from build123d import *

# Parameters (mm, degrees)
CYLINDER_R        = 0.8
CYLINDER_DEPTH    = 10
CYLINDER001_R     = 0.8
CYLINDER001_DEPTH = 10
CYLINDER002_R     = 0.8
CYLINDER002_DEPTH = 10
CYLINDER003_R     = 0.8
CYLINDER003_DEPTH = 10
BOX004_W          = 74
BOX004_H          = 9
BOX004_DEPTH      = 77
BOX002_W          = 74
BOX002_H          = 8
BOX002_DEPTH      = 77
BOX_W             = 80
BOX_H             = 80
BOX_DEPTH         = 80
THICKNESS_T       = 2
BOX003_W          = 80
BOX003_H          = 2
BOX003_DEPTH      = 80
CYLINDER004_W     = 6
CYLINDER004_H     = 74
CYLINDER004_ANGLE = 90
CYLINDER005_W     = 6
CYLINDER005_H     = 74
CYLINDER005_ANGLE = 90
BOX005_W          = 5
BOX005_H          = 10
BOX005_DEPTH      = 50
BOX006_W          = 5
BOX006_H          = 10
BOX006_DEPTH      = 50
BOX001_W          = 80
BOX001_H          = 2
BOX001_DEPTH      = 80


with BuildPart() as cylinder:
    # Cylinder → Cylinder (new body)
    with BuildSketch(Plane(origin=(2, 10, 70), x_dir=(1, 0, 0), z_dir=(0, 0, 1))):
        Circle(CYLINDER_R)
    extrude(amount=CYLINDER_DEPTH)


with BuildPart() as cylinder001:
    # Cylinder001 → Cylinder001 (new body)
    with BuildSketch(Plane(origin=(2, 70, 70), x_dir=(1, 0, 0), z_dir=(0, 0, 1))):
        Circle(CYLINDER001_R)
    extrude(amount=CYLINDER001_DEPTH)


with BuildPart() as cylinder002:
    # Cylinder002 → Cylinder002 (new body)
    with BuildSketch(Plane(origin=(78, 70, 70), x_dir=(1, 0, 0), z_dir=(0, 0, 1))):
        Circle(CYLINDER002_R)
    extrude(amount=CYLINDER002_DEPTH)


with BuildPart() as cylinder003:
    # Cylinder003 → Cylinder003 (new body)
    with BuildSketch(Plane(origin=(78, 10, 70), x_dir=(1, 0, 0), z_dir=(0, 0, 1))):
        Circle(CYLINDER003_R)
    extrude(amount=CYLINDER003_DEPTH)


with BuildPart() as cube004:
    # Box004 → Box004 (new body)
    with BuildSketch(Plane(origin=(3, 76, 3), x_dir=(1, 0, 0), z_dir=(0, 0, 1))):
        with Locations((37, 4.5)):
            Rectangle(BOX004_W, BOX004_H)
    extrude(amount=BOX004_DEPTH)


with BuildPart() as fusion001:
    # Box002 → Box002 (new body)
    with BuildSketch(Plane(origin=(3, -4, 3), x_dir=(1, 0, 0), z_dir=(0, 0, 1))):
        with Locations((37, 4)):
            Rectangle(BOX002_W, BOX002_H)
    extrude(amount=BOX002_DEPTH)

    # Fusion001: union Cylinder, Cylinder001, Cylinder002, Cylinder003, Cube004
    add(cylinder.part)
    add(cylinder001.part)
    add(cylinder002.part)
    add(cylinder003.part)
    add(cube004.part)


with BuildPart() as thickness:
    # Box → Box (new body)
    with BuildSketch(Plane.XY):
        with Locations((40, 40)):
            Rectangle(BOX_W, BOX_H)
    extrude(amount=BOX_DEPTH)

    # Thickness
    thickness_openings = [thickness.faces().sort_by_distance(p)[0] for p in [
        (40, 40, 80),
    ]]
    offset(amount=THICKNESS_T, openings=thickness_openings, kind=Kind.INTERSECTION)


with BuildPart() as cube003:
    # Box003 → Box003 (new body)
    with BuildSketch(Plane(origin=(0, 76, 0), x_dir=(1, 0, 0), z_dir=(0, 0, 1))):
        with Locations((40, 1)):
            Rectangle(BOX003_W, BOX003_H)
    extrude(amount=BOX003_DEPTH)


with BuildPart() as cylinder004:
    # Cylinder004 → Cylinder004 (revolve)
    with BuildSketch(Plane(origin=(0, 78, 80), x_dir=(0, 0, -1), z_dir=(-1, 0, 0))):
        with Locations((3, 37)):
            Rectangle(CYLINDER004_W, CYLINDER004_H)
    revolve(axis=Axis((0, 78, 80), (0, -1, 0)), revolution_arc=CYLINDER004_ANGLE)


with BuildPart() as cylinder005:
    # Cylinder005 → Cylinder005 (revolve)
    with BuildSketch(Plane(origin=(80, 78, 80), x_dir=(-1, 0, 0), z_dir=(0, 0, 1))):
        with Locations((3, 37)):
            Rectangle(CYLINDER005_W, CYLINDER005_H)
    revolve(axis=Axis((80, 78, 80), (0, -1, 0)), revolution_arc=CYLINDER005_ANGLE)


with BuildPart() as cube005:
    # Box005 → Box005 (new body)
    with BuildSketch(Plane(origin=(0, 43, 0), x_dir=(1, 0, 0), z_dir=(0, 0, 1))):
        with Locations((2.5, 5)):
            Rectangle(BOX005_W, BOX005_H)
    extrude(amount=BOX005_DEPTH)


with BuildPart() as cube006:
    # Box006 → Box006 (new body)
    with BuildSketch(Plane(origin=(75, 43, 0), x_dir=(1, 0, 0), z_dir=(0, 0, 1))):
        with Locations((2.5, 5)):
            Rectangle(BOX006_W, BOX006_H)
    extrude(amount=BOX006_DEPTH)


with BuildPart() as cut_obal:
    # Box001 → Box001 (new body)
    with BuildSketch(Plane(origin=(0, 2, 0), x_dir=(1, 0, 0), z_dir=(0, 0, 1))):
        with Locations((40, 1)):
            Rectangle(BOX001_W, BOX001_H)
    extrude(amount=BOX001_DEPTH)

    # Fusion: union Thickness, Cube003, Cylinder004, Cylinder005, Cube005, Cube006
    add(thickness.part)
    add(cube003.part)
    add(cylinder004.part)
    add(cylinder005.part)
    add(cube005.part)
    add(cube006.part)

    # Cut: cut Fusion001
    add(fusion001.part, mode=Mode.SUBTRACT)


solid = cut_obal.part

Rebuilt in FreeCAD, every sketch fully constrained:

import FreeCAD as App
import Part
import Sketcher


def faces_at(feature, points):
    """Names of the faces that lie closest to the given points."""
    faces = feature.Shape.Faces
    near = lambda p: min(range(len(faces)), key=lambda i: faces[i].distToShape(Part.Vertex(*p))[0])
    return sorted({f"Face{near(p) + 1}" for p in points})


def add_polygon(sketch, points):
    """Adds a closed chain of lines whose ends are joined by coincident constraints."""
    first, n = sketch.GeometryCount, len(points)
    for a, b in zip(points, points[1:] + points[:1]):
        sketch.addGeometry(Part.LineSegment(App.Vector(*a, 0), App.Vector(*b, 0)), False)
    for i in range(n):
        sketch.addConstraint(Sketcher.Constraint("Coincident", first + i, 2, first + (i + 1) % n, 1))

doc = App.newDocument("Part")
params = doc.addObject("Spreadsheet::Sheet", "Params")
for row, (alias, value) in enumerate([
    ("sketch1_diameter", "1.6 mm"),
    ("pad1_length", "10 mm"),
    ("sketch2_diameter", "1.6 mm"),
    ("pad2_length", "10 mm"),
    ("sketch3_diameter", "1.6 mm"),
    ("pad3_length", "10 mm"),
    ("sketch4_diameter", "1.6 mm"),
    ("pad4_length", "10 mm"),
    ("sketch5_width", "74 mm"),
    ("sketch5_height", "9 mm"),
    ("pad5_length", "77 mm"),
    ("sketch6_width", "74 mm"),
    ("sketch6_height", "8 mm"),
    ("pad6_length", "77 mm"),
    ("sketch7_width", "80 mm"),
    ("pad7_length", "80 mm"),
    ("thickness_wall", "2 mm"),
    ("sketch8_width", "80 mm"),
    ("sketch8_height", "2 mm"),
    ("pad8_length", "80 mm"),
    ("sketch9_width", "74 mm"),
    ("sketch9_height", "6 mm"),
    ("revolution_angle", "90 deg"),
    ("sketch10_width", "6 mm"),
    ("sketch10_height", "74 mm"),
    ("revolution2_angle", "90 deg"),
    ("sketch11_width", "5 mm"),
    ("sketch11_height", "10 mm"),
    ("pad9_length", "50 mm"),
    ("sketch12_width", "5 mm"),
    ("sketch12_height", "10 mm"),
    ("pad10_length", "50 mm"),
    ("sketch13_width", "80 mm"),
    ("sketch13_height", "2 mm"),
    ("pad11_length", "80 mm"),
], start=1):
    params.set(f"A{row}", alias)
    params.set(f"B{row}", "=" + value)
    params.setAlias(f"B{row}", alias)

body = doc.addObject("PartDesign::Body", "Body")

# Sketch on XY plane
sketch1 = body.newObject("Sketcher::SketchObject", "Sketch")
sketch1.AttachmentSupport = (doc.getObject("XY_Plane"), [""])
sketch1.MapMode = "FlatFace"
sketch1.AttachmentOffset = App.Placement(App.Vector(0, 0, 70), App.Rotation())
sketch1.addGeometry(Part.Circle(App.Vector(2, 10, 0), App.Vector(0, 0, 1), 0.8), False)
sketch1.addConstraint([
    Sketcher.Constraint("Diameter", 0, 1.6),
    Sketcher.Constraint("DistanceX", -1, 1, 0, 3, 2.0),
    Sketcher.Constraint("DistanceY", -1, 1, 0, 3, 10.0),
])
sketch1.setExpression("Constraints[0]", "Params.sketch1_diameter")
pad1 = body.newObject("PartDesign::Pad", "Pad")
pad1.Profile = sketch1
pad1.setExpression("Length", "Params.pad1_length")
body2 = doc.addObject("PartDesign::Body", "Body001")

# Sketch on XY plane
sketch2 = body2.newObject("Sketcher::SketchObject", "Sketch001")
sketch2.AttachmentSupport = (doc.getObject("XY_Plane001"), [""])
sketch2.MapMode = "FlatFace"
sketch2.AttachmentOffset = App.Placement(App.Vector(0, 0, 70), App.Rotation())
sketch2.addGeometry(Part.Circle(App.Vector(2, 70, 0), App.Vector(0, 0, 1), 0.8), False)
sketch2.addConstraint([
    Sketcher.Constraint("Diameter", 0, 1.6),
    Sketcher.Constraint("DistanceX", -1, 1, 0, 3, 2.0),
    Sketcher.Constraint("DistanceY", -1, 1, 0, 3, 70.0),
])
sketch2.setExpression("Constraints[0]", "Params.sketch2_diameter")
pad2 = body2.newObject("PartDesign::Pad", "Pad001")
pad2.Profile = sketch2
pad2.setExpression("Length", "Params.pad2_length")
body3 = doc.addObject("PartDesign::Body", "Body002")

# Sketch on XY plane
sketch3 = body3.newObject("Sketcher::SketchObject", "Sketch002")
sketch3.AttachmentSupport = (doc.getObject("XY_Plane002"), [""])
sketch3.MapMode = "FlatFace"
sketch3.AttachmentOffset = App.Placement(App.Vector(0, 0, 70), App.Rotation())
sketch3.addGeometry(Part.Circle(App.Vector(78, 70, 0), App.Vector(0, 0, 1), 0.8), False)
sketch3.addConstraint([
    Sketcher.Constraint("Diameter", 0, 1.6),
    Sketcher.Constraint("DistanceX", -1, 1, 0, 3, 78.0),
    Sketcher.Constraint("DistanceY", -1, 1, 0, 3, 70.0),
])
sketch3.setExpression("Constraints[0]", "Params.sketch3_diameter")
pad3 = body3.newObject("PartDesign::Pad", "Pad002")
pad3.Profile = sketch3
pad3.setExpression("Length", "Params.pad3_length")
body4 = doc.addObject("PartDesign::Body", "Body003")

# Sketch on XY plane
sketch4 = body4.newObject("Sketcher::SketchObject", "Sketch003")
sketch4.AttachmentSupport = (doc.getObject("XY_Plane003"), [""])
sketch4.MapMode = "FlatFace"
sketch4.AttachmentOffset = App.Placement(App.Vector(0, 0, 70), App.Rotation())
sketch4.addGeometry(Part.Circle(App.Vector(78, 10, 0), App.Vector(0, 0, 1), 0.8), False)
sketch4.addConstraint([
    Sketcher.Constraint("Diameter", 0, 1.6),
    Sketcher.Constraint("DistanceX", -1, 1, 0, 3, 78.0),
    Sketcher.Constraint("DistanceY", -1, 1, 0, 3, 10.0),
])
sketch4.setExpression("Constraints[0]", "Params.sketch4_diameter")
pad4 = body4.newObject("PartDesign::Pad", "Pad003")
pad4.Profile = sketch4
pad4.setExpression("Length", "Params.pad4_length")
body5 = doc.addObject("PartDesign::Body", "Body004")

# Sketch on XY plane
sketch5 = body5.newObject("Sketcher::SketchObject", "Sketch004")
sketch5.AttachmentSupport = (doc.getObject("XY_Plane004"), [""])
sketch5.MapMode = "FlatFace"
sketch5.AttachmentOffset = App.Placement(App.Vector(0, 0, 3), App.Rotation())
add_polygon(sketch5, [(3, 85), (3, 76), (77, 76), (77, 85)])  # lines 0-3
sketch5.addConstraint([
    Sketcher.Constraint("Vertical", 0),
    Sketcher.Constraint("Horizontal", 1),
    Sketcher.Constraint("Vertical", 2),
    Sketcher.Constraint("Horizontal", 3),
    Sketcher.Constraint("DistanceX", 1, 1, 1, 2, 74.0),
    Sketcher.Constraint("DistanceY", 0, 2, 0, 1, 9.0),
    Sketcher.Constraint("DistanceX", -1, 1, 0, 2, 3.0),
    Sketcher.Constraint("DistanceY", -1, 1, 0, 2, 76.0),
])
sketch5.setExpression("Constraints[8]", "Params.sketch5_width")
sketch5.setExpression("Constraints[9]", "Params.sketch5_height")
pad5 = body5.newObject("PartDesign::Pad", "Pad004")
pad5.Profile = sketch5
pad5.setExpression("Length", "Params.pad5_length")
body6 = doc.addObject("PartDesign::Body", "Body005")
body6.AllowCompound = True

# Sketch on XY plane
sketch6 = body6.newObject("Sketcher::SketchObject", "Sketch005")
sketch6.AttachmentSupport = (doc.getObject("XY_Plane005"), [""])
sketch6.MapMode = "FlatFace"
sketch6.AttachmentOffset = App.Placement(App.Vector(0, 0, 3), App.Rotation())
add_polygon(sketch6, [(3, 4), (3, -4), (77, -4), (77, 4)])  # lines 0-3
sketch6.addConstraint([
    Sketcher.Constraint("Vertical", 0),
    Sketcher.Constraint("Horizontal", 1),
    Sketcher.Constraint("Vertical", 2),
    Sketcher.Constraint("Horizontal", 3),
    Sketcher.Constraint("DistanceX", 1, 1, 1, 2, 74.0),
    Sketcher.Constraint("DistanceY", 0, 2, 0, 1, 8.0),
    Sketcher.Constraint("DistanceX", -1, 1, 0, 2, 3.0),
    Sketcher.Constraint("DistanceY", 0, 2, -1, 1, 4.0),
])
sketch6.setExpression("Constraints[8]", "Params.sketch6_width")
sketch6.setExpression("Constraints[9]", "Params.sketch6_height")
pad6 = body6.newObject("PartDesign::Pad", "Pad005")
pad6.Profile = sketch6
pad6.setExpression("Length", "Params.pad6_length")
doc.recompute()

boolean = body6.newObject("PartDesign::Boolean", "Boolean")
boolean.Type = "Fuse"
boolean.addObjects([body])
doc.recompute()

boolean2 = body6.newObject("PartDesign::Boolean", "Boolean001")
boolean2.Type = "Fuse"
boolean2.addObjects([body2])
doc.recompute()

boolean3 = body6.newObject("PartDesign::Boolean", "Boolean002")
boolean3.Type = "Fuse"
boolean3.addObjects([body3])
doc.recompute()

boolean4 = body6.newObject("PartDesign::Boolean", "Boolean003")
boolean4.Type = "Fuse"
boolean4.addObjects([body4])
doc.recompute()

boolean5 = body6.newObject("PartDesign::Boolean", "Boolean004")
boolean5.Type = "Fuse"
boolean5.addObjects([body5])
body7 = doc.addObject("PartDesign::Body", "Body006")

# Sketch on XY plane
sketch7 = body7.newObject("Sketcher::SketchObject", "Sketch006")
sketch7.AttachmentSupport = (doc.getObject("XY_Plane006"), [""])
sketch7.MapMode = "FlatFace"
add_polygon(sketch7, [(0, 80), (0, 0), (80, 0), (80, 80)])  # lines 0-3
sketch7.addConstraint([
    Sketcher.Constraint("Vertical", 0),
    Sketcher.Constraint("Horizontal", 1),
    Sketcher.Constraint("Vertical", 2),
    Sketcher.Constraint("Horizontal", 3),
    Sketcher.Constraint("Coincident", 0, 2, -1, 1),
    Sketcher.Constraint("Equal", 3, 0),
    Sketcher.Constraint("DistanceX", 1, 1, 1, 2, 80.0),
])
sketch7.setExpression("Constraints[10]", "Params.sketch7_width")
pad7 = body7.newObject("PartDesign::Pad", "Pad006")
pad7.Profile = sketch7
pad7.setExpression("Length", "Params.pad7_length")
doc.recompute()

thickness = body7.newObject("PartDesign::Thickness", "Thickness")
thickness.Base = (pad7, faces_at(pad7, [(40, 40, 80)]))
thickness.setExpression("Value", "Params.thickness_wall")
thickness.Reversed = False
thickness.Join = "Intersection"
body8 = doc.addObject("PartDesign::Body", "Body007")

# Sketch on XY plane
sketch8 = body8.newObject("Sketcher::SketchObject", "Sketch007")
sketch8.AttachmentSupport = (doc.getObject("XY_Plane007"), [""])
sketch8.MapMode = "FlatFace"
add_polygon(sketch8, [(0, 78), (0, 76), (80, 76), (80, 78)])  # lines 0-3
sketch8.addConstraint([
    Sketcher.Constraint("Vertical", 0),
    Sketcher.Constraint("Horizontal", 1),
    Sketcher.Constraint("Vertical", 2),
    Sketcher.Constraint("Horizontal", 3),
    Sketcher.Constraint("PointOnObject", 0, 2, -2),
    Sketcher.Constraint("DistanceX", 1, 1, 1, 2, 80.0),
    Sketcher.Constraint("DistanceY", 0, 2, 0, 1, 2.0),
    Sketcher.Constraint("DistanceY", -1, 1, 0, 2, 76.0),
])
sketch8.setExpression("Constraints[9]", "Params.sketch8_width")
sketch8.setExpression("Constraints[10]", "Params.sketch8_height")
pad8 = body8.newObject("PartDesign::Pad", "Pad007")
pad8.Profile = sketch8
pad8.setExpression("Length", "Params.pad8_length")
body9 = doc.addObject("PartDesign::Body", "Body008")

# Sketch on YZ plane
sketch9 = body9.newObject("Sketcher::SketchObject", "Sketch008")
sketch9.AttachmentSupport = (doc.getObject("YZ_Plane008"), [""])
sketch9.MapMode = "FlatFace"
add_polygon(sketch9, [(4, 80), (78, 80), (78, 74), (4, 74)])  # lines 0-3
sketch9.addGeometry(Part.LineSegment(App.Vector(78, 80, 0), App.Vector(4, 80, 0)), True)  # axis
sketch9.addConstraint([
    Sketcher.Constraint("Horizontal", 0),
    Sketcher.Constraint("Vertical", 1),
    Sketcher.Constraint("Horizontal", 2),
    Sketcher.Constraint("Vertical", 3),
    Sketcher.Constraint("Horizontal", 4),
    Sketcher.Constraint("Coincident", 4, 1, 0, 2),
    Sketcher.Constraint("Vertical", 2, 2, 4, 2),
    Sketcher.Constraint("DistanceX", 0, 1, 0, 2, 74.0),
    Sketcher.Constraint("DistanceY", 1, 2, 1, 1, 6.0),
    Sketcher.Constraint("DistanceX", -1, 1, 0, 2, 78.0),
    Sketcher.Constraint("DistanceY", -1, 1, 0, 2, 80.0),
])
sketch9.setExpression("Constraints[11]", "Params.sketch9_width")
sketch9.setExpression("Constraints[12]", "Params.sketch9_height")
revolution = body9.newObject("PartDesign::Revolution", "Revolution")
revolution.Profile = sketch9
revolution.ReferenceAxis = (sketch9, ["Axis0"])
revolution.setExpression("Angle", "Params.revolution_angle")
body10 = doc.addObject("PartDesign::Body", "Body009")

# Sketch on XY plane
sketch10 = body10.newObject("Sketcher::SketchObject", "Sketch009")
sketch10.AttachmentSupport = (doc.getObject("XY_Plane009"), [""])
sketch10.MapMode = "FlatFace"
sketch10.AttachmentOffset = App.Placement(App.Vector(0, 0, 80), App.Rotation())
add_polygon(sketch10, [(80, 4), (80, 78), (74, 78), (74, 4)])  # lines 0-3
sketch10.addGeometry(Part.LineSegment(App.Vector(80, 78, 0), App.Vector(80, 4, 0)), True)  # axis
sketch10.addConstraint([
    Sketcher.Constraint("Vertical", 0),
    Sketcher.Constraint("Horizontal", 1),
    Sketcher.Constraint("Vertical", 2),
    Sketcher.Constraint("Horizontal", 3),
    Sketcher.Constraint("Vertical", 4),
    Sketcher.Constraint("Coincident", 4, 1, 0, 2),
    Sketcher.Constraint("Horizontal", 2, 2, 4, 2),
    Sketcher.Constraint("DistanceX", 1, 2, 1, 1, 6.0),
    Sketcher.Constraint("DistanceY", 0, 1, 0, 2, 74.0),
    Sketcher.Constraint("DistanceX", -1, 1, 0, 2, 80.0),
    Sketcher.Constraint("DistanceY", -1, 1, 0, 2, 78.0),
])
sketch10.setExpression("Constraints[11]", "Params.sketch10_width")
sketch10.setExpression("Constraints[12]", "Params.sketch10_height")
revolution2 = body10.newObject("PartDesign::Revolution", "Revolution001")
revolution2.Profile = sketch10
revolution2.ReferenceAxis = (sketch10, ["Axis0"])
revolution2.setExpression("Angle", "Params.revolution2_angle")
body11 = doc.addObject("PartDesign::Body", "Body010")

# Sketch on XY plane
sketch11 = body11.newObject("Sketcher::SketchObject", "Sketch010")
sketch11.AttachmentSupport = (doc.getObject("XY_Plane010"), [""])
sketch11.MapMode = "FlatFace"
add_polygon(sketch11, [(0, 53), (0, 43), (5, 43), (5, 53)])  # lines 0-3
sketch11.addConstraint([
    Sketcher.Constraint("Vertical", 0),
    Sketcher.Constraint("Horizontal", 1),
    Sketcher.Constraint("Vertical", 2),
    Sketcher.Constraint("Horizontal", 3),
    Sketcher.Constraint("PointOnObject", 0, 2, -2),
    Sketcher.Constraint("DistanceX", 1, 1, 1, 2, 5.0),
    Sketcher.Constraint("DistanceY", 0, 2, 0, 1, 10.0),
    Sketcher.Constraint("DistanceY", -1, 1, 0, 2, 43.0),
])
sketch11.setExpression("Constraints[9]", "Params.sketch11_width")
sketch11.setExpression("Constraints[10]", "Params.sketch11_height")
pad9 = body11.newObject("PartDesign::Pad", "Pad008")
pad9.Profile = sketch11
pad9.setExpression("Length", "Params.pad9_length")
body12 = doc.addObject("PartDesign::Body", "Body011")

# Sketch on XY plane
sketch12 = body12.newObject("Sketcher::SketchObject", "Sketch011")
sketch12.AttachmentSupport = (doc.getObject("XY_Plane011"), [""])
sketch12.MapMode = "FlatFace"
add_polygon(sketch12, [(75, 53), (75, 43), (80, 43), (80, 53)])  # lines 0-3
sketch12.addConstraint([
    Sketcher.Constraint("Vertical", 0),
    Sketcher.Constraint("Horizontal", 1),
    Sketcher.Constraint("Vertical", 2),
    Sketcher.Constraint("Horizontal", 3),
    Sketcher.Constraint("DistanceX", 1, 1, 1, 2, 5.0),
    Sketcher.Constraint("DistanceY", 0, 2, 0, 1, 10.0),
    Sketcher.Constraint("DistanceX", -1, 1, 0, 2, 75.0),
    Sketcher.Constraint("DistanceY", -1, 1, 0, 2, 43.0),
])
sketch12.setExpression("Constraints[8]", "Params.sketch12_width")
sketch12.setExpression("Constraints[9]", "Params.sketch12_height")
pad10 = body12.newObject("PartDesign::Pad", "Pad009")
pad10.Profile = sketch12
pad10.setExpression("Length", "Params.pad10_length")
body13 = doc.addObject("PartDesign::Body", "Body012")

# Sketch on XY plane
sketch13 = body13.newObject("Sketcher::SketchObject", "Sketch012")
sketch13.AttachmentSupport = (doc.getObject("XY_Plane012"), [""])
sketch13.MapMode = "FlatFace"
add_polygon(sketch13, [(0, 4), (0, 2), (80, 2), (80, 4)])  # lines 0-3
sketch13.addConstraint([
    Sketcher.Constraint("Vertical", 0),
    Sketcher.Constraint("Horizontal", 1),
    Sketcher.Constraint("Vertical", 2),
    Sketcher.Constraint("Horizontal", 3),
    Sketcher.Constraint("PointOnObject", 0, 2, -2),
    Sketcher.Constraint("DistanceX", 1, 1, 1, 2, 80.0),
    Sketcher.Constraint("DistanceY", 0, 2, 0, 1, 2.0),
    Sketcher.Constraint("DistanceY", -1, 1, 0, 2, 2.0),
])
sketch13.setExpression("Constraints[9]", "Params.sketch13_width")
sketch13.setExpression("Constraints[10]", "Params.sketch13_height")
pad11 = body13.newObject("PartDesign::Pad", "Pad010")
pad11.Profile = sketch13
pad11.setExpression("Length", "Params.pad11_length")
doc.recompute()

boolean6 = body13.newObject("PartDesign::Boolean", "Boolean005")
boolean6.Type = "Fuse"
boolean6.addObjects([body7])
doc.recompute()

boolean7 = body13.newObject("PartDesign::Boolean", "Boolean006")
boolean7.Type = "Fuse"
boolean7.addObjects([body8])
doc.recompute()

boolean8 = body13.newObject("PartDesign::Boolean", "Boolean007")
boolean8.Type = "Fuse"
boolean8.addObjects([body9])
doc.recompute()

boolean9 = body13.newObject("PartDesign::Boolean", "Boolean008")
boolean9.Type = "Fuse"
boolean9.addObjects([body10])
doc.recompute()

boolean10 = body13.newObject("PartDesign::Boolean", "Boolean009")
boolean10.Type = "Fuse"
boolean10.addObjects([body11])
doc.recompute()

boolean11 = body13.newObject("PartDesign::Boolean", "Boolean010")
boolean11.Type = "Fuse"
boolean11.addObjects([body12])
doc.recompute()

boolean12 = body13.newObject("PartDesign::Boolean", "Boolean011")
boolean12.Type = "Cut"
boolean12.addObjects([body6])

doc.recompute()
